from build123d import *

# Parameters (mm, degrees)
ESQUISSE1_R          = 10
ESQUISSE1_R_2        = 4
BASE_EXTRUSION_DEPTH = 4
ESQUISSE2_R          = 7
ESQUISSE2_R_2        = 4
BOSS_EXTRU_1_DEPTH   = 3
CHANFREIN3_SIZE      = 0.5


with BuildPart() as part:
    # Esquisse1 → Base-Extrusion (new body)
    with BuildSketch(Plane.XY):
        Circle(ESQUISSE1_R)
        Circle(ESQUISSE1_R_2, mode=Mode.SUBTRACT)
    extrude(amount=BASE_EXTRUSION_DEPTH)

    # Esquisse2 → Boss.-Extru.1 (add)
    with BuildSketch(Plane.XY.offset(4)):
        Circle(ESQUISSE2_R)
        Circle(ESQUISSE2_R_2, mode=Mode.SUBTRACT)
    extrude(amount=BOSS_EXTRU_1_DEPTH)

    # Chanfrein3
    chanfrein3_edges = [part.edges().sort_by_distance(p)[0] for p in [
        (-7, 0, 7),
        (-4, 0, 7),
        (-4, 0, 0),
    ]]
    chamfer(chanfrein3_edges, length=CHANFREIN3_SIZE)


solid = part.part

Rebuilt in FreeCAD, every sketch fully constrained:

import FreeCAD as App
import Part
import Sketcher


def edges_at(feature, points):
    """Names of the edges that pass closest to the given points."""
    edges = feature.Shape.Edges
    near = lambda p: min(range(len(edges)), key=lambda i: edges[i].distToShape(Part.Vertex(*p))[0])
    return sorted({f"Edge{near(p) + 1}" for p in points})

doc = App.newDocument("Part")
body = doc.addObject("PartDesign::Body", "Body")

# Sketch on XY plane
sketch1 = doc.addObject("Sketcher::SketchObject", "Sketch")
body.addObject(sketch1)
sketch1.AttachmentSupport = (doc.XY_Plane, [""])
sketch1.MapMode = "FlatFace"
sketch1.addGeometry([
    Part.Circle(App.Vector(0, 0, 0), App.Vector(0, 0, 1), 10),
    Part.Circle(App.Vector(0, 0, 0), App.Vector(0, 0, 1), 4),
], False)
sketch1.addConstraint([
    Sketcher.Constraint("Coincident", 0, 3, -1, 1),
    Sketcher.Constraint("Coincident", 1, 3, -1, 1),
    Sketcher.Constraint("Diameter", 0, 20.0),
    Sketcher.Constraint("Diameter", 1, 8.0),
])
pad1 = doc.addObject("PartDesign::Pad", "Pad")
body.addObject(pad1)
pad1.Profile = sketch1
pad1.Length = 4

# Sketch on XY plane
sketch2 = doc.addObject("Sketcher::SketchObject", "Sketch001")
body.addObject(sketch2)
sketch2.AttachmentSupport = (doc.XY_Plane, [""])
sketch2.MapMode = "FlatFace"
sketch2.AttachmentOffset = App.Placement(App.Vector(0, 0, 4), App.Rotation())
sketch2.addGeometry([
    Part.Circle(App.Vector(0, 0, 0), App.Vector(0, 0, 1), 7),
    Part.Circle(App.Vector(0, 0, 0), App.Vector(0, 0, 1), 4),
], False)
sketch2.addConstraint([
    Sketcher.Constraint("Coincident", 0, 3, -1, 1),
    Sketcher.Constraint("Coincident", 1, 3, -1, 1),
    Sketcher.Constraint("Diameter", 0, 14.0),
    Sketcher.Constraint("Diameter", 1, 8.0),
])
pad2 = doc.addObject("PartDesign::Pad", "Pad001")
body.addObject(pad2)
pad2.Profile = sketch2
pad2.Length = 3
doc.recompute()

chamfer = doc.addObject("PartDesign::Chamfer", "Chamfer")
body.addObject(chamfer)
chamfer.Base = (pad2, edges_at(pad2, [(-7, 0, 7), (-4, 0, 7), (-4, 0, 0)]))
chamfer.Size = 0.5

doc.recompute()
